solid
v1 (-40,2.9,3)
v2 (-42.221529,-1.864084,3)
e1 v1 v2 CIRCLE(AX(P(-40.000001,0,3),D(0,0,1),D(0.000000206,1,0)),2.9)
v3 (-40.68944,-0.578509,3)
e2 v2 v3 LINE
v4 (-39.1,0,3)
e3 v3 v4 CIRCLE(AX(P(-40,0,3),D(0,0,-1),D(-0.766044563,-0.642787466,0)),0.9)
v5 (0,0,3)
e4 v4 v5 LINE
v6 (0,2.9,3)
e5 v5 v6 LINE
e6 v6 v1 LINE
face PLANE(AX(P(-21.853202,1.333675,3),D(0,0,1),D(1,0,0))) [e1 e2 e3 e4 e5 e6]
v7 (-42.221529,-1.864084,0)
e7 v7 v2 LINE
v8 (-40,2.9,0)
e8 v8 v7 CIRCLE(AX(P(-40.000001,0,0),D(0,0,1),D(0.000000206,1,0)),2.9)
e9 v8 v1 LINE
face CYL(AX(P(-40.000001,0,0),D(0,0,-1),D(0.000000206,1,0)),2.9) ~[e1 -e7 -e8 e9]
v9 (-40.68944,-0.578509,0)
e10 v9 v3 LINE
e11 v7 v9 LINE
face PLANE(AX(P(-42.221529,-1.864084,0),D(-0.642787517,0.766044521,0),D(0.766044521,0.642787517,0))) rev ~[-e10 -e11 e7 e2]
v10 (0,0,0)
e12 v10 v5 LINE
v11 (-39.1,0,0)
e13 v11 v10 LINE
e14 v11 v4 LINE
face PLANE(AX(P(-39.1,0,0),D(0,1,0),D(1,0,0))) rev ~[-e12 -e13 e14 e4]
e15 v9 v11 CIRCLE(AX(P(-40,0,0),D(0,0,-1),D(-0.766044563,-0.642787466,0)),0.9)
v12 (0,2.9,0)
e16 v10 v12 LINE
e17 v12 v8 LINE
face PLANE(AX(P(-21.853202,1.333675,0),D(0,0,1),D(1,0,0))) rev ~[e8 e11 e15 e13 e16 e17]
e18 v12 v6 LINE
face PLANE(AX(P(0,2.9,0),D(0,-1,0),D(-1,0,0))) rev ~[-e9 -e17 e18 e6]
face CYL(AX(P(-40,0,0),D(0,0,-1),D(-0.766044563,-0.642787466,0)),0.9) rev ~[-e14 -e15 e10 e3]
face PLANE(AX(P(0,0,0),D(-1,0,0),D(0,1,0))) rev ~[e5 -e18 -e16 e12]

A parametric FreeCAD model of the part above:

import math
import FreeCAD as App
import Part
import Sketcher
Q = App.Units.Quantity

doc = App.newDocument("Part")
body = doc.addObject("PartDesign::Body", "Body")

sketch1 = body.newObject("Sketcher::SketchObject", "Sketch")
sketch1.AttachmentSupport = (doc.getObject("XY_Plane"), [""])
sketch1.MapMode = "FlatFace"
sketch1.addGeometry([
    Part.ArcOfCircle(Part.Circle(App.Vector(-40, 0, 0), App.Vector(0, 0, 1), 0.9), math.radians(0), math.radians(220)),
    Part.LineSegment(App.Vector(-39.1, 0, 0), App.Vector(0, 0, 0)),
    Part.LineSegment(App.Vector(0, 0, 0), App.Vector(0, 2.9, 0)),
    Part.LineSegment(App.Vector(0, 2.9, 0), App.Vector(-40, 2.9, 0)),
    Part.ArcOfCircle(Part.Circle(App.Vector(-40, 0, 0), App.Vector(0, 0, 1), 2.9), math.radians(90), math.radians(220)),
    Part.LineSegment(App.Vector(-42.2, -1.9, 0), App.Vector(-40.7, -0.6, 0)),
], False)
sketch1.addConstraint([
    Sketcher.Constraint("Coincident", 0, 1, 1, 1),
    Sketcher.Constraint("Coincident", 1, 2, 2, 1),
    Sketcher.Constraint("Coincident", 2, 2, 3, 1),
    Sketcher.Constraint("Tangent", 3, 2, 4, 1),
    Sketcher.Constraint("Coincident", 4, 2, 5, 1),
    Sketcher.Constraint("Coincident", 5, 2, 0, 2),
    Sketcher.Constraint("Horizontal", 1),
    Sketcher.Constraint("Vertical", 2),
    Sketcher.Constraint("Horizontal", 3),
    Sketcher.Constraint("Coincident", 1, 2, -1, 1),
    Sketcher.Constraint("Coincident", 4, 3, 0, 3),
    Sketcher.Constraint("PointOnObject", 0, 3, -1),
    Sketcher.Constraint("Radius", 0, 0.9),
    Sketcher.Constraint("Radius", 4, 2.9),
    Sketcher.Constraint("DistanceX", 3, 2, 3, 1, 40.0),
    Sketcher.Constraint("Angle", 5, Q("39.999993 deg")),
    Sketcher.Constraint("DistanceX", 4, 2, -1, 1, 42.221529),
])
pad1 = body.newObject("PartDesign::Pad", "Pad")
pad1.Profile = sketch1
pad1.Length = 3

doc.recompute()
